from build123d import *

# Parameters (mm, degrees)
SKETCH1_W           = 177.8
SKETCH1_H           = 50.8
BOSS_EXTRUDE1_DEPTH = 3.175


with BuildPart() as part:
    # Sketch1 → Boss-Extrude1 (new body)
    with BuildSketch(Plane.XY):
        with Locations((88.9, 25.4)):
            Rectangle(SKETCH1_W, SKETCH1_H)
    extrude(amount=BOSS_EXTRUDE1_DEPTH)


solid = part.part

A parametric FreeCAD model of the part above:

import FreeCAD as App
import Part
import Sketcher

V = App.Vector
Q = App.Units.Quantity


def add_polygon(sketch, points):
    """Adds a closed chain of lines whose ends are joined by coincident constraints."""
    first, n = sketch.GeometryCount, len(points)
    for a, b in zip(points, points[1:] + points[:1]):
        sketch.addGeometry(Part.LineSegment(App.Vector(*a, 0), App.Vector(*b, 0)), False)
    for i in range(n):
        sketch.addConstraint(Sketcher.Constraint("Coincident", first + i, 2, first + (i + 1) % n, 1))

doc = App.newDocument("Part")
params = doc.addObject("Spreadsheet::Sheet", "Params")
for row, (alias, value) in enumerate([
    ("sketch1_width", "7 in"),
    ("sketch1_height", "2 in"),
    ("pad1_length", "0.125 in"),
], start=1):
    params.set(f"A{row}", alias)
    params.set(f"B{row}", "=" + value)
    params.setAlias(f"B{row}", alias)

body = doc.addObject("PartDesign::Body", "Body")

sketch1 = doc.addObject("Sketcher::SketchObject", "Sketch")
body.addObject(sketch1)
sketch1.AttachmentSupport = (doc.XY_Plane, [""])
sketch1.MapMode = "FlatFace"
add_polygon(sketch1, [(0, 51), (0, 0), (178, 0), (178, 51)])
sketch1.addConstraint([
    Sketcher.Constraint("Vertical", 0),
    Sketcher.Constraint("Horizontal", 1),
    Sketcher.Constraint("Vertical", 2),
    Sketcher.Constraint("Horizontal", 3),
    Sketcher.Constraint("Coincident", 0, 2, -1, 1),
    Sketcher.Constraint("DistanceX", 1, 1, 1, 2, Q("7 in")),
    Sketcher.Constraint("DistanceY", 0, 2, 0, 1, Q("2 in")),
])
sketch1.setExpression("Constraints[9]", "Params.sketch1_width")
sketch1.setExpression("Constraints[10]", "Params.sketch1_height")
pad1 = doc.addObject("PartDesign::Pad", "Pad")
body.addObject(pad1)
pad1.Profile = sketch1
pad1.setExpression("Length", "Params.pad1_length")

doc.recompute()
